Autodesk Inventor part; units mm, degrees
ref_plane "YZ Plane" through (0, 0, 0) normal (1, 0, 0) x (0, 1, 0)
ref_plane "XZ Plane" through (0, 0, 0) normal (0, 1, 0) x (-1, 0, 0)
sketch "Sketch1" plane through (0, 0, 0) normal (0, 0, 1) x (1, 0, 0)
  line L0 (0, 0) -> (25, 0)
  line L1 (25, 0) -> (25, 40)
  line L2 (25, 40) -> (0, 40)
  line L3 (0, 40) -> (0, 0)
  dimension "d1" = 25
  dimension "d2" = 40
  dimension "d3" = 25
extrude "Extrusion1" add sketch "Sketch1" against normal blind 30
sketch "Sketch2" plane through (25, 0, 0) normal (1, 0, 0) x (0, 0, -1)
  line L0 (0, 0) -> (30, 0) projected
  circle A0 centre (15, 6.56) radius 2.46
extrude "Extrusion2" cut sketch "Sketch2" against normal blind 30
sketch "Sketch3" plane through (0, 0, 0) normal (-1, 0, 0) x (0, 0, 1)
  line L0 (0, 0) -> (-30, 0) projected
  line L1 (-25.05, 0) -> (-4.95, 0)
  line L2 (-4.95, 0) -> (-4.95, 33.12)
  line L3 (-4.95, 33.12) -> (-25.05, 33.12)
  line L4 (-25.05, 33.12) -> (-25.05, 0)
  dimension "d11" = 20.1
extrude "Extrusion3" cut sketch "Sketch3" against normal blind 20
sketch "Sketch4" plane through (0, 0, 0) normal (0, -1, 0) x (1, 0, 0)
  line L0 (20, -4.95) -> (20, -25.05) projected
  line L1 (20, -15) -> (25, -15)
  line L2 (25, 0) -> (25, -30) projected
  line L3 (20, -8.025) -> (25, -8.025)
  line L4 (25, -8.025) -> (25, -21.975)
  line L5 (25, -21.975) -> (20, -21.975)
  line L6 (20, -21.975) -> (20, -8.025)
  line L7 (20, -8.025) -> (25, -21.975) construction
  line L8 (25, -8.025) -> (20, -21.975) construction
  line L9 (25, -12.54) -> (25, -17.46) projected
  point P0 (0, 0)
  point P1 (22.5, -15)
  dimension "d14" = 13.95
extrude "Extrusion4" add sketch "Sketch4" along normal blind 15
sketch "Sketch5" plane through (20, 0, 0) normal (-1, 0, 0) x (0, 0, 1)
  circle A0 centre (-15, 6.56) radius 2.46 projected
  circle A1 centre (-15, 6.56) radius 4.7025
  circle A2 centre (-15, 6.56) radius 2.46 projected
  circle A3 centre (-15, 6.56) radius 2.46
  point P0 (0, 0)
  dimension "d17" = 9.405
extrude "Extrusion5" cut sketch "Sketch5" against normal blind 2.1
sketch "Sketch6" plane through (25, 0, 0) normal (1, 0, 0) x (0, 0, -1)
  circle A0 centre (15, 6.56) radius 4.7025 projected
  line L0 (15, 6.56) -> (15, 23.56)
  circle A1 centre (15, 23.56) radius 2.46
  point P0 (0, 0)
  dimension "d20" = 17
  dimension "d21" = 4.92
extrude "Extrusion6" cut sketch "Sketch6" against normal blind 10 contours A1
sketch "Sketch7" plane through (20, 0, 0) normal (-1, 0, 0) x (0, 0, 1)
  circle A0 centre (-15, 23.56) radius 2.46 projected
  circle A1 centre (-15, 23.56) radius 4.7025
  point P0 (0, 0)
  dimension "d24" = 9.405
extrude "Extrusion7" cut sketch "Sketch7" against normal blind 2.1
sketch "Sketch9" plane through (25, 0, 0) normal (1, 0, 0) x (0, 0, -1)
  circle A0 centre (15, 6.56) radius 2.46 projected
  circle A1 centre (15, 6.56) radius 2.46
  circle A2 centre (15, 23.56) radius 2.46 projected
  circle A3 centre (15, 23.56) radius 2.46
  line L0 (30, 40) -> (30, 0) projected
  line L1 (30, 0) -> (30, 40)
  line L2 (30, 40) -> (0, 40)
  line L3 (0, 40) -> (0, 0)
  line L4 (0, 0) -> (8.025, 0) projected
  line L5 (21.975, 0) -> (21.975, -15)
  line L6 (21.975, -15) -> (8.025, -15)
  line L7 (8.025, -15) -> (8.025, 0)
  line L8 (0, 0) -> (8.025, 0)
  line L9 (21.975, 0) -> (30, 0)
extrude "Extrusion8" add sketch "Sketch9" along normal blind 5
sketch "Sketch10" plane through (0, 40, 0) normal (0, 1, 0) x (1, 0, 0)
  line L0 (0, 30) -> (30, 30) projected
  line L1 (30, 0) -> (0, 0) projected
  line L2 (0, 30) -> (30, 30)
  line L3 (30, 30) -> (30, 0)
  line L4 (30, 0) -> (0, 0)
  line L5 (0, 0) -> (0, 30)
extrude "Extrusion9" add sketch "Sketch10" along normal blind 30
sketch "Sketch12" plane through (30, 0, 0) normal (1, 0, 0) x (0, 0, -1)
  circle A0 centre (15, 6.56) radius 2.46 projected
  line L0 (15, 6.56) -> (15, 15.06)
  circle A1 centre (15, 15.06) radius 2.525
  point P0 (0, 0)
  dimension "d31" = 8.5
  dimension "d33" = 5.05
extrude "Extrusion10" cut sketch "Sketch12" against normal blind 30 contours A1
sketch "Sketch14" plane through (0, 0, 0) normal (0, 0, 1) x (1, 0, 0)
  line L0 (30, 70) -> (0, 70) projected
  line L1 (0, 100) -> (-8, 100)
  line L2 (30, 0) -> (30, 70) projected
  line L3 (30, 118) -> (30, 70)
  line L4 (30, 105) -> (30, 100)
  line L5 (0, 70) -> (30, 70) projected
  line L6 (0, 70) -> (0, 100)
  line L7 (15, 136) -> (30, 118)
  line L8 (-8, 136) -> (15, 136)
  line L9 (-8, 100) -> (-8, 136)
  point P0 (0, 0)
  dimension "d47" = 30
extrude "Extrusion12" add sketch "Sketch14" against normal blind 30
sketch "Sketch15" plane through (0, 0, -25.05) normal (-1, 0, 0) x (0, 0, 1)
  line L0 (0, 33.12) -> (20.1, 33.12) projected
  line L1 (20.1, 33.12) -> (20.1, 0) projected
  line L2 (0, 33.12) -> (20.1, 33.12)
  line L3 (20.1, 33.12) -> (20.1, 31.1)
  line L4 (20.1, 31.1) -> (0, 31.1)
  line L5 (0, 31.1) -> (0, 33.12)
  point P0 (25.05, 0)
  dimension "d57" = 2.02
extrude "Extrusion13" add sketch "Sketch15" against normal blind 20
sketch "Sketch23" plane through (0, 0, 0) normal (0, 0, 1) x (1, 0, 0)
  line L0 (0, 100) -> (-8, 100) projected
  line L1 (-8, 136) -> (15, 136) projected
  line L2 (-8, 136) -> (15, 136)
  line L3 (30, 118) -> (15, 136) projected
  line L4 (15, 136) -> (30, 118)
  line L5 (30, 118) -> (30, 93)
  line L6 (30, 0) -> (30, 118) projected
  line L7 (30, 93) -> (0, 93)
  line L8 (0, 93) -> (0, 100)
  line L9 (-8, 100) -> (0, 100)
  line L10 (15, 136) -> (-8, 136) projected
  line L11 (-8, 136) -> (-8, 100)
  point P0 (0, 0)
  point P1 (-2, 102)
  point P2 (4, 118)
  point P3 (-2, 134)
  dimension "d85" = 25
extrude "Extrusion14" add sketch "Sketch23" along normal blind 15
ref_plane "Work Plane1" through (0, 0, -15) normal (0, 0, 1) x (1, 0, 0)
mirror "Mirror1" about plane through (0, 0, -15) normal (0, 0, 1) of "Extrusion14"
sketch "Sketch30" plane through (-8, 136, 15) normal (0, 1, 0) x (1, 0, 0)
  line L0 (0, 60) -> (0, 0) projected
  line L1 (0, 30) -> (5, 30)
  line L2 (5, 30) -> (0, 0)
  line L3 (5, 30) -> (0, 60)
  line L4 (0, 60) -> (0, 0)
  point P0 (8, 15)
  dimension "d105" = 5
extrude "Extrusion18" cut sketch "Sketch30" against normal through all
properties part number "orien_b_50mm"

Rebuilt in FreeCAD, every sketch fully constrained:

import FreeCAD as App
import Part
import Sketcher

V = App.Vector

doc = App.newDocument("Part")
body = doc.addObject("PartDesign::Body", "Body")

# Sketch on XY plane
sketch1 = doc.addObject("Sketcher::SketchObject", "Sketch")
body.addObject(sketch1)
sketch1.AttachmentSupport = (doc.XY_Plane, [""])
sketch1.MapMode = "FlatFace"
sketch1.addGeometry([
    Part.LineSegment(V(0, 40, 0), V(0, 0, 0)),
    Part.LineSegment(V(0, 0, 0), V(25, 0, 0)),
    Part.LineSegment(V(25, 0, 0), V(25, 40, 0)),
    Part.LineSegment(V(25, 40, 0), V(0, 40, 0)),
], False)
sketch1.addConstraint([
    Sketcher.Constraint("Coincident", 0, 2, 1, 1),
    Sketcher.Constraint("Coincident", 1, 2, 2, 1),
    Sketcher.Constraint("Coincident", 2, 2, 3, 1),
    Sketcher.Constraint("Coincident", 3, 2, 0, 1),
    Sketcher.Constraint("Vertical", 0),
    Sketcher.Constraint("Horizontal", 1),
    Sketcher.Constraint("Vertical", 2),
    Sketcher.Constraint("Horizontal", 3),
    Sketcher.Constraint("Coincident", 0, 2, -1, 1),
    Sketcher.Constraint("DistanceX", 1, 1, 1, 2, 25.0),
    Sketcher.Constraint("DistanceY", 0, 2, 0, 1, 40.0),
])
pad1 = doc.addObject("PartDesign::Pad", "Pad")
body.addObject(pad1)
pad1.Profile = sketch1
pad1.Length = 30
pad1.Reversed = True

# Sketch on YZ plane
sketch2 = doc.addObject("Sketcher::SketchObject", "Sketch001")
body.addObject(sketch2)
sketch2.AttachmentSupport = (doc.YZ_Plane, [""])
sketch2.MapMode = "FlatFace"
sketch2.AttachmentOffset = App.Placement(V(0, 0, 25), App.Rotation())
sketch2.addGeometry(Part.Circle(V(6.6, -15, 0), V(0, 0, 1), 2.5), False)
sketch2.addConstraint([
    Sketcher.Constraint("Diameter", 0, 4.92),
    Sketcher.Constraint("DistanceY", 0, 3, -1, 1, 15.0),
    Sketcher.Constraint("DistanceX", -1, 1, 0, 3, 6.56),
])
pocket1 = doc.addObject("PartDesign::Pocket", "Pocket")
body.addObject(pocket1)
pocket1.Profile = sketch2
pocket1.Length = 30

# Sketch on YZ plane
sketch3 = doc.addObject("Sketcher::SketchObject", "Sketch002")
body.addObject(sketch3)
sketch3.AttachmentSupport = (doc.YZ_Plane, [""])
sketch3.MapMode = "FlatFace"
sketch3.addGeometry([
    Part.LineSegment(V(0, -25, 0), V(0, -5, 0)),
    Part.LineSegment(V(0, -5, 0), V(33, -5, 0)),
    Part.LineSegment(V(33, -5, 0), V(33, -25, 0)),
    Part.LineSegment(V(33, -25, 0), V(0, -25, 0)),
], False)
sketch3.addConstraint([
    Sketcher.Constraint("Coincident", 0, 2, 1, 1),
    Sketcher.Constraint("Coincident", 1, 2, 2, 1),
    Sketcher.Constraint("Coincident", 2, 2, 3, 1),
    Sketcher.Constraint("Coincident", 3, 2, 0, 1),
    Sketcher.Constraint("Vertical", 0),
    Sketcher.Constraint("Horizontal", 1),
    Sketcher.Constraint("Vertical", 2),
    Sketcher.Constraint("Horizontal", 3),
    Sketcher.Constraint("PointOnObject", 0, 2, -2),
    Sketcher.Constraint("DistanceY", 0, 1, 0, 2, 20.1),
    Sketcher.Constraint("DistanceX", 1, 1, 1, 2, 33.12),
    Sketcher.Constraint("DistanceY", 0, 2, -1, 1, 4.95),
])
pocket2 = doc.addObject("PartDesign::Pocket", "Pocket001")
body.addObject(pocket2)
pocket2.Profile = sketch3
pocket2.Length = 20
pocket2.Reversed = True

# Sketch on XZ plane
sketch4 = doc.addObject("Sketcher::SketchObject", "Sketch003")
body.addObject(sketch4)
sketch4.AttachmentSupport = (doc.XZ_Plane, [""])
sketch4.MapMode = "FlatFace"
sketch4.addGeometry([
    Part.LineSegment(V(25, -8, 0), V(20, -8, 0)),
    Part.LineSegment(V(20, -8, 0), V(20, -22, 0)),
    Part.LineSegment(V(20, -22, 0), V(25, -22, 0)),
    Part.LineSegment(V(25, -22, 0), V(25, -8, 0)),
], False)
sketch4.addConstraint([
    Sketcher.Constraint("Coincident", 0, 2, 1, 1),
    Sketcher.Constraint("Coincident", 1, 2, 2, 1),
    Sketcher.Constraint("Coincident", 2, 2, 3, 1),
    Sketcher.Constraint("Coincident", 3, 2, 0, 1),
    Sketcher.Constraint("Horizontal", 0),
    Sketcher.Constraint("Vertical", 1),
    Sketcher.Constraint("Horizontal", 2),
    Sketcher.Constraint("Vertical", 3),
    Sketcher.Constraint("DistanceY", 1, 2, 1, 1, 13.95),
    Sketcher.Constraint("DistanceX", 0, 2, 0, 1, 5.0),
    Sketcher.Constraint("DistanceX", -1, 1, 0, 2, 20.0),
    Sketcher.Constraint("DistanceY", 0, 2, -1, 1, 8.025),
])
pad2 = doc.addObject("PartDesign::Pad", "Pad001")
body.addObject(pad2)
pad2.Profile = sketch4
pad2.Length = 15

# Sketch on YZ plane
sketch5 = doc.addObject("Sketcher::SketchObject", "Sketch004")
body.addObject(sketch5)
sketch5.AttachmentSupport = (doc.YZ_Plane, [""])
sketch5.MapMode = "FlatFace"
sketch5.AttachmentOffset = App.Placement(V(0, 0, 20), App.Rotation())
sketch5.addGeometry([
    Part.Circle(V(6.6, -15, 0), V(0, 0, 1), 4.7),
    Part.Circle(V(6.6, -15, 0), V(0, 0, 1), 2.5),
], False)
sketch5.addConstraint([
    Sketcher.Constraint("Coincident", 1, 3, 0, 3),
    Sketcher.Constraint("Diameter", 0, 9.405),
    Sketcher.Constraint("Diameter", 1, 4.92),
    Sketcher.Constraint("DistanceY", 0, 3, -1, 1, 15.0),
    Sketcher.Constraint("DistanceX", -1, 1, 0, 3, 6.56),
])
pocket3 = doc.addObject("PartDesign::Pocket", "Pocket002")
body.addObject(pocket3)
pocket3.Profile = sketch5
pocket3.Length = 2.1
pocket3.Reversed = True

# Sketch on YZ plane
sketch6 = doc.addObject("Sketcher::SketchObject", "Sketch005")
body.addObject(sketch6)
sketch6.AttachmentSupport = (doc.YZ_Plane, [""])
sketch6.MapMode = "FlatFace"
sketch6.AttachmentOffset = App.Placement(V(0, 0, 25), App.Rotation())
sketch6.addGeometry(Part.Circle(V(23.6, -15, 0), V(0, 0, 1), 2.5), False)
sketch6.addConstraint([
    Sketcher.Constraint("Diameter", 0, 4.92),
    Sketcher.Constraint("DistanceY", 0, 3, -1, 1, 15.0),
    Sketcher.Constraint("DistanceX", -1, 1, 0, 3, 23.56),
])
pocket4 = doc.addObject("PartDesign::Pocket", "Pocket003")
body.addObject(pocket4)
pocket4.Profile = sketch6
pocket4.Length = 10

# Sketch on YZ plane
sketch7 = doc.addObject("Sketcher::SketchObject", "Sketch006")
body.addObject(sketch7)
sketch7.AttachmentSupport = (doc.YZ_Plane, [""])
sketch7.MapMode = "FlatFace"
sketch7.AttachmentOffset = App.Placement(V(0, 0, 20), App.Rotation())
sketch7.addGeometry([
    Part.Circle(V(23.6, -15, 0), V(0, 0, 1), 4.7),
    Part.Circle(V(23.6, -15, 0), V(0, 0, 1), 2.5),
], False)
sketch7.addConstraint([
    Sketcher.Constraint("Coincident", 1, 3, 0, 3),
    Sketcher.Constraint("Diameter", 0, 9.405),
    Sketcher.Constraint("Diameter", 1, 4.92),
    Sketcher.Constraint("DistanceY", 0, 3, -1, 1, 15.0),
    Sketcher.Constraint("DistanceX", -1, 1, 0, 3, 23.56),
])
pocket5 = doc.addObject("PartDesign::Pocket", "Pocket004")
body.addObject(pocket5)
pocket5.Profile = sketch7
pocket5.Length = 2.1
pocket5.Reversed = True

# Sketch on YZ plane
sketch8 = doc.addObject("Sketcher::SketchObject", "Sketch007")
body.addObject(sketch8)
sketch8.AttachmentSupport = (doc.YZ_Plane, [""])
sketch8.MapMode = "FlatFace"
sketch8.AttachmentOffset = App.Placement(V(0, 0, 25), App.Rotation())
sketch8.addGeometry([
    Part.LineSegment(V(0, -30, 0), V(40, -30, 0)),  # 0
    Part.LineSegment(V(40, -30, 0), V(40, 0, 0)),  # 1
    Part.LineSegment(V(40, 0, 0), V(0, 0, 0)),  # 2
    Part.LineSegment(V(0, 0, 0), V(0, -8, 0)),  # 3
    Part.LineSegment(V(0, -8, 0), V(-15, -8, 0)),  # 4
    Part.LineSegment(V(-15, -8, 0), V(-15, -22, 0)),  # 5
    Part.LineSegment(V(-15, -22, 0), V(0, -22, 0)),  # 6
    Part.LineSegment(V(0, -22, 0), V(0, -30, 0)),  # 7
    Part.Circle(V(6.6, -15, 0), V(0, 0, 1), 2.5),  # 8
    Part.Circle(V(23.6, -15, 0), V(0, 0, 1), 2.5),  # 9
], False)
sketch8.addConstraint([
    Sketcher.Constraint("Coincident", 0, 2, 1, 1),
    Sketcher.Constraint("Coincident", 1, 2, 2, 1),
    Sketcher.Constraint("Coincident", 2, 2, 3, 1),
    Sketcher.Constraint("Coincident", 3, 2, 4, 1),
    Sketcher.Constraint("Coincident", 4, 2, 5, 1),
    Sketcher.Constraint("Coincident", 5, 2, 6, 1),
    Sketcher.Constraint("Coincident", 6, 2, 7, 1),
    Sketcher.Constraint("Coincident", 7, 2, 0, 1),
    Sketcher.Constraint("Horizontal", 0),
    Sketcher.Constraint("Vertical", 1),
    Sketcher.Constraint("Horizontal", 2),
    Sketcher.Constraint("Vertical", 3),
    Sketcher.Constraint("Horizontal", 4),
    Sketcher.Constraint("Vertical", 5),
    Sketcher.Constraint("Horizontal", 6),
    Sketcher.Constraint("Vertical", 7),
    Sketcher.Constraint("Coincident", 2, 2, -1, 1),
    Sketcher.Constraint("Equal", 8, 9),
    Sketcher.Constraint("PointOnObject", 6, 2, -2),
    Sketcher.Constraint("Horizontal", 8, 3, 9, 3),
    Sketcher.Constraint("Equal", 3, 7),
    Sketcher.Constraint("Diameter", 8, 4.92),
    Sketcher.Constraint("DistanceX", 0, 1, 0, 2, 40.0),
    Sketcher.Constraint("DistanceX", 4, 2, 4, 1, 15.0),
    Sketcher.Constraint("DistanceY", 1, 1, 1, 2, 30.0),
    Sketcher.Constraint("DistanceY", 8, 3, -1, 1, 15.0),
    Sketcher.Constraint("DistanceX", 8, 3, 9, 3, 17.0),
    Sketcher.Constraint("DistanceY", 5, 2, 5, 1, 13.95),
    Sketcher.Constraint("DistanceX", -1, 1, 8, 3, 6.56),
])
pad3 = doc.addObject("PartDesign::Pad", "Pad002")
body.addObject(pad3)
pad3.Profile = sketch8
pad3.Length = 5

# Sketch on XZ plane
sketch9 = doc.addObject("Sketcher::SketchObject", "Sketch008")
body.addObject(sketch9)
sketch9.AttachmentSupport = (doc.XZ_Plane, [""])
sketch9.MapMode = "FlatFace"
sketch9.AttachmentOffset = App.Placement(V(0, 0, -40), App.Rotation())
sketch9.addGeometry([
    Part.LineSegment(V(30, -30, 0), V(0, -30, 0)),
    Part.LineSegment(V(0, -30, 0), V(0, 0, 0)),
    Part.LineSegment(V(0, 0, 0), V(30, 0, 0)),
    Part.LineSegment(V(30, 0, 0), V(30, -30, 0)),
], False)
sketch9.addConstraint([
    Sketcher.Constraint("Coincident", 0, 2, 1, 1),
    Sketcher.Constraint("Coincident", 1, 2, 2, 1),
    Sketcher.Constraint("Coincident", 2, 2, 3, 1),
    Sketcher.Constraint("Coincident", 3, 2, 0, 1),
    Sketcher.Constraint("Horizontal", 0),
    Sketcher.Constraint("Vertical", 1),
    Sketcher.Constraint("Horizontal", 2),
    Sketcher.Constraint("Vertical", 3),
    Sketcher.Constraint("Coincident", 1, 2, -1, 1),
    Sketcher.Constraint("Equal", 2, 1),
    Sketcher.Constraint("DistanceX", 0, 2, 0, 1, 30.0),
])
pad4 = doc.addObject("PartDesign::Pad", "Pad003")
body.addObject(pad4)
pad4.Profile = sketch9
pad4.Length = 30
pad4.Reversed = True

# Sketch on YZ plane
sketch10 = doc.addObject("Sketcher::SketchObject", "Sketch009")
body.addObject(sketch10)
sketch10.AttachmentSupport = (doc.YZ_Plane, [""])
sketch10.MapMode = "FlatFace"
sketch10.AttachmentOffset = App.Placement(V(0, 0, 30), App.Rotation())
sketch10.addGeometry(Part.Circle(V(15.1, -15, 0), V(0, 0, 1), 2.5), False)
sketch10.addConstraint([
    Sketcher.Constraint("Diameter", 0, 5.05),
    Sketcher.Constraint("DistanceY", 0, 3, -1, 1, 15.0),
    Sketcher.Constraint("DistanceX", -1, 1, 0, 3, 15.06),
])
pocket6 = doc.addObject("PartDesign::Pocket", "Pocket005")
body.addObject(pocket6)
pocket6.Profile = sketch10
pocket6.Length = 30

# Sketch on XY plane
sketch11 = doc.addObject("Sketcher::SketchObject", "Sketch010")
body.addObject(sketch11)
sketch11.AttachmentSupport = (doc.XY_Plane, [""])
sketch11.MapMode = "FlatFace"
sketch11.addGeometry([
    Part.LineSegment(V(0, 70, 0), V(30, 70, 0)),  # 0
    Part.LineSegment(V(30, 70, 0), V(30, 118, 0)),  # 1
    Part.LineSegment(V(30, 118, 0), V(15, 136, 0)),  # 2
    Part.LineSegment(V(15, 136, 0), V(-8, 136, 0)),  # 3
    Part.LineSegment(V(-8, 136, 0), V(-8, 100, 0)),  # 4
    Part.LineSegment(V(-8, 100, 0), V(0, 100, 0)),  # 5
    Part.LineSegment(V(0, 100, 0), V(0, 70, 0)),  # 6
], False)
sketch11.addConstraint([
    Sketcher.Constraint("Coincident", 0, 2, 1, 1),
    Sketcher.Constraint("Coincident", 1, 2, 2, 1),
    Sketcher.Constraint("Coincident", 2, 2, 3, 1),
    Sketcher.Constraint("Coincident", 3, 2, 4, 1),
    Sketcher.Constraint("Coincident", 4, 2, 5, 1),
    Sketcher.Constraint("Coincident", 5, 2, 6, 1),
    Sketcher.Constraint("Coincident", 6, 2, 0, 1),
    Sketcher.Constraint("Horizontal", 0),
    Sketcher.Constraint("Vertical", 1),
    Sketcher.Constraint("Horizontal", 3),
    Sketcher.Constraint("Vertical", 4),
    Sketcher.Constraint("Horizontal", 5),
    Sketcher.Constraint("Vertical", 6),
    Sketcher.Constraint("PointOnObject", 5, 2, -2),
    Sketcher.Constraint("Equal", 0, 6),
    Sketcher.Constraint("DistanceX", 0, 1, 0, 2, 30.0),
    Sketcher.Constraint("DistanceX", 3, 2, 3, 1, 23.0),
    Sketcher.Constraint("DistanceX", 5, 1, 5, 2, 8.0),
    Sketcher.Constraint("DistanceY", 1, 1, 1, 2, 48.0),
    Sketcher.Constraint("DistanceY", 4, 2, 4, 1, 36.0),
    Sketcher.Constraint("DistanceY", -1, 1, 0, 2, 70.0),
])
pad5 = doc.addObject("PartDesign::Pad", "Pad004")
body.addObject(pad5)
pad5.Profile = sketch11
pad5.Length = 30
pad5.Reversed = True

# Sketch on YZ plane
sketch12 = doc.addObject("Sketcher::SketchObject", "Sketch011")
body.addObject(sketch12)
sketch12.AttachmentSupport = (doc.YZ_Plane, [""])
sketch12.MapMode = "FlatFace"
sketch12.addGeometry([
    Part.LineSegment(V(33.1, -5, 0), V(33.1, -25.1, 0)),
    Part.LineSegment(V(33.1, -25.1, 0), V(31.1, -25.1, 0)),
    Part.LineSegment(V(31.1, -25.1, 0), V(31.1, -5, 0)),
    Part.LineSegment(V(31.1, -5, 0), V(33.1, -5, 0)),
], False)
sketch12.addConstraint([
    Sketcher.Constraint("Coincident", 0, 2, 1, 1),
    Sketcher.Constraint("Coincident", 1, 2, 2, 1),
    Sketcher.Constraint("Coincident", 2, 2, 3, 1),
    Sketcher.Constraint("Coincident", 3, 2, 0, 1),
    Sketcher.Constraint("Vertical", 0),
    Sketcher.Constraint("Horizontal", 1),
    Sketcher.Constraint("Vertical", 2),
    Sketcher.Constraint("Horizontal", 3),
    Sketcher.Constraint("DistanceX", 1, 2, 1, 1, 2.02),
    Sketcher.Constraint("DistanceY", 0, 2, 0, 1, 20.1),
    Sketcher.Constraint("DistanceX", -1, 1, 1, 2, 31.1),
    Sketcher.Constraint("DistanceY", 0, 2, -1, 1, 25.05),
])
pad6 = doc.addObject("PartDesign::Pad", "Pad005")
body.addObject(pad6)
pad6.Profile = sketch12
pad6.Length = 20

# Sketch on XY plane
sketch13 = doc.addObject("Sketcher::SketchObject", "Sketch012")
body.addObject(sketch13)
sketch13.AttachmentSupport = (doc.XY_Plane, [""])
sketch13.MapMode = "FlatFace"
sketch13.addGeometry([
    Part.LineSegment(V(-8, 100, 0), V(0, 100, 0)),  # 0
    Part.LineSegment(V(0, 100, 0), V(0, 93, 0)),  # 1
    Part.LineSegment(V(0, 93, 0), V(30, 93, 0)),  # 2
    Part.LineSegment(V(30, 93, 0), V(30, 118, 0)),  # 3
    Part.LineSegment(V(30, 118, 0), V(15, 136, 0)),  # 4
    Part.LineSegment(V(15, 136, 0), V(-8, 136, 0)),  # 5
    Part.LineSegment(V(-8, 136, 0), V(-8, 100, 0)),  # 6
], False)
sketch13.addConstraint([
    Sketcher.Constraint("Coincident", 0, 2, 1, 1),
    Sketcher.Constraint("Coincident", 1, 2, 2, 1),
    Sketcher.Constraint("Coincident", 2, 2, 3, 1),
    Sketcher.Constraint("Coincident", 3, 2, 4, 1),
    Sketcher.Constraint("Coincident", 4, 2, 5, 1),
    Sketcher.Constraint("Coincident", 5, 2, 6, 1),
    Sketcher.Constraint("Coincident", 6, 2, 0, 1),
    Sketcher.Constraint("Horizontal", 0),
    Sketcher.Constraint("Vertical", 1),
    Sketcher.Constraint("Horizontal", 2),
    Sketcher.Constraint("Vertical", 3),
    Sketcher.Constraint("Horizontal", 5),
    Sketcher.Constraint("Vertical", 6),
    Sketcher.Constraint("PointOnObject", 0, 2, -2),
    Sketcher.Constraint("DistanceY", 3, 1, 3, 2, 25.0),
    Sketcher.Constraint("DistanceX", 0, 1, 0, 2, 8.0),
    Sketcher.Constraint("DistanceX", 2, 1, 2, 2, 30.0),
    Sketcher.Constraint("DistanceX", 5, 2, 5, 1, 23.0),
    Sketcher.Constraint("DistanceY", 1, 2, 1, 1, 7.0),
    Sketcher.Constraint("DistanceY", 6, 2, 6, 1, 36.0),
    Sketcher.Constraint("DistanceY", -1, 1, 0, 2, 100.0),
])
pad7 = doc.addObject("PartDesign::Pad", "Pad006")
body.addObject(pad7)
pad7.Profile = sketch13
pad7.Length = 15
doc.recompute()

datumplane = doc.addObject("PartDesign::Plane", "DatumPlane")
body.addObject(datumplane)
datumplane.AttachmentSupport = (doc.XY_Plane, [""])
datumplane.MapMode = "FlatFace"
datumplane.AttachmentOffset = App.Placement(V(0, 0, -15), App.Rotation())
mirrored = doc.addObject("PartDesign::Mirrored", "Mirrored")
body.addObject(mirrored)
mirrored.Originals = [pad7]
mirrored.MirrorPlane = (datumplane, [""])
body.Tip = mirrored

# Sketch on XZ plane
sketch14 = doc.addObject("Sketcher::SketchObject", "Sketch013")
body.addObject(sketch14)
sketch14.AttachmentSupport = (doc.XZ_Plane, [""])
sketch14.MapMode = "FlatFace"
sketch14.AttachmentOffset = App.Placement(V(0, 0, -136), App.Rotation())
sketch14.addGeometry([
    Part.LineSegment(V(-3, -15, 0), V(-8, -45, 0)),
    Part.LineSegment(V(-8, -45, 0), V(-8, 15, 0)),
    Part.LineSegment(V(-8, 15, 0), V(-3, -15, 0)),
], False)
sketch14.addConstraint([
    Sketcher.Constraint("Coincident", 0, 2, 1, 1),
    Sketcher.Constraint("Coincident", 1, 2, 2, 1),
    Sketcher.Constraint("Coincident", 2, 2, 0, 1),
    Sketcher.Constraint("Vertical", 1),
    Sketcher.Constraint("Equal", 0, 2),
    Sketcher.Constraint("DistanceX", 0, 2, 2, 2, 5.0),
    Sketcher.Constraint("DistanceY", 1, 1, 1, 2, 60.0),
    Sketcher.Constraint("DistanceX", 0, 2, -1, 1, 8.0),
    Sketcher.Constraint("DistanceY", 0, 2, -1, 1, 45.0),
])
pocket7 = doc.addObject("PartDesign::Pocket", "Pocket006")
body.addObject(pocket7)
pocket7.Profile = sketch14
pocket7.Type = "ThroughAll"
pocket7.Reversed = True

doc.recompute()
